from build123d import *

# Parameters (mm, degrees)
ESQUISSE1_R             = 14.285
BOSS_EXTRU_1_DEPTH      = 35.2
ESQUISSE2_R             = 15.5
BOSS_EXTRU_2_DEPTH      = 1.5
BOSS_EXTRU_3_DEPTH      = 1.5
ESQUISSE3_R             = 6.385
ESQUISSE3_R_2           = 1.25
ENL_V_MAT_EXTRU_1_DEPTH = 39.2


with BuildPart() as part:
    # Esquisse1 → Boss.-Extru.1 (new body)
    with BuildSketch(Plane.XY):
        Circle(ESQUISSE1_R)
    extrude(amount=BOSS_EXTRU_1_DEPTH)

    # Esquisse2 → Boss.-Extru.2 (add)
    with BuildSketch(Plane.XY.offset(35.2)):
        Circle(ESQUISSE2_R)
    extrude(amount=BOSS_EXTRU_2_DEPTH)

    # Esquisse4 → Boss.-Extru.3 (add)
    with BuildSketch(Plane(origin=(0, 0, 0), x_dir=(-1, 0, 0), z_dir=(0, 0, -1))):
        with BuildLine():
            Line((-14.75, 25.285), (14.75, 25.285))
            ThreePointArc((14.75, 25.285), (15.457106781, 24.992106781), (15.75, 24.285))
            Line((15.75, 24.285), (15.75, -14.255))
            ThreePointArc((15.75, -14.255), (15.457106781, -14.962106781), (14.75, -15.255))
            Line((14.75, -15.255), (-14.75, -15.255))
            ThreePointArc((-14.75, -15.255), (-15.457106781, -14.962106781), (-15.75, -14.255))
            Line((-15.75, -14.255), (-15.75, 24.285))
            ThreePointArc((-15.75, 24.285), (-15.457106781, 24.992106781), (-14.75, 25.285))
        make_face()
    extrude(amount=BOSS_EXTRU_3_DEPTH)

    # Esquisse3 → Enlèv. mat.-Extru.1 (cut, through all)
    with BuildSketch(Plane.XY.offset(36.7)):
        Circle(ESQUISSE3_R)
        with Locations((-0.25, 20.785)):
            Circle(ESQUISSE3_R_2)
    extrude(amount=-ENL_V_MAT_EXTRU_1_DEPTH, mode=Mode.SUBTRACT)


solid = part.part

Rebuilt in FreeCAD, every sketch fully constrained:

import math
import FreeCAD as App
import Part
import Sketcher

V = App.Vector
Q = App.Units.Quantity

doc = App.newDocument("Part")
body = doc.addObject("PartDesign::Body", "Body")

# Sketch on XY plane
sketch1 = doc.addObject("Sketcher::SketchObject", "Sketch")
body.addObject(sketch1)
sketch1.AttachmentSupport = (doc.XY_Plane, [""])
sketch1.MapMode = "FlatFace"
sketch1.addGeometry(Part.Circle(V(0, 0, 0), V(0, 0, 1), 14), False)
sketch1.addConstraint([
    Sketcher.Constraint("Coincident", 0, 3, -1, 1),
    Sketcher.Constraint("Diameter", 0, Q("28.57 mm")),
])
pad1 = doc.addObject("PartDesign::Pad", "Pad")
body.addObject(pad1)
pad1.Profile = sketch1
pad1.Length = 35.2

# Sketch on XY plane
sketch2 = doc.addObject("Sketcher::SketchObject", "Sketch001")
body.addObject(sketch2)
sketch2.AttachmentSupport = (doc.XY_Plane, [""])
sketch2.MapMode = "FlatFace"
sketch2.AttachmentOffset = App.Placement(V(0, 0, 35.2), App.Rotation())
sketch2.addGeometry(Part.Circle(V(0, 0, 0), V(0, 0, 1), 16), False)
sketch2.addConstraint([
    Sketcher.Constraint("Coincident", 0, 3, -1, 1),
    Sketcher.Constraint("Diameter", 0, Q("31 mm")),
])
pad2 = doc.addObject("PartDesign::Pad", "Pad001")
body.addObject(pad2)
pad2.Profile = sketch2
pad2.Length = 1.5

# Sketch on XY plane
sketch3 = doc.addObject("Sketcher::SketchObject", "Sketch002")
body.addObject(sketch3)
sketch3.AttachmentSupport = (doc.XY_Plane, [""])
sketch3.MapMode = "FlatFace"
sketch3.addGeometry([
    Part.LineSegment(V(-14.8, 25.3, 0), V(14.8, 25.3, 0)),  # 0
    Part.ArcOfCircle(Part.Circle(V(14.7, 24.3, 0), V(0, 0, 1), 1), math.radians(0), math.radians(90)),  # 1
    Part.LineSegment(V(15.8, 24.3, 0), V(15.8, -14.3, 0)),  # 2
    Part.ArcOfCircle(Part.Circle(V(14.7, -14.3, 0), V(0, 0, 1), 1), math.radians(-90), math.radians(0)),  # 3
    Part.LineSegment(V(14.8, -15.3, 0), V(-14.8, -15.3, 0)),  # 4
    Part.ArcOfCircle(Part.Circle(V(-14.7, -14.3, 0), V(0, 0, 1), 1), math.radians(-180), math.radians(-90)),  # 5
    Part.LineSegment(V(-15.8, -14.3, 0), V(-15.8, 24.3, 0)),  # 6
    Part.ArcOfCircle(Part.Circle(V(-14.7, 24.3, 0), V(0, 0, 1), 1), math.radians(90), math.radians(180)),  # 7
], False)
sketch3.addConstraint([
    Sketcher.Constraint("Tangent", 0, 2, 1, 2),
    Sketcher.Constraint("Tangent", 1, 1, 2, 1),
    Sketcher.Constraint("Tangent", 2, 2, 3, 2),
    Sketcher.Constraint("Tangent", 3, 1, 4, 1),
    Sketcher.Constraint("Tangent", 4, 2, 5, 2),
    Sketcher.Constraint("Tangent", 5, 1, 6, 1),
    Sketcher.Constraint("Tangent", 6, 2, 7, 2),
    Sketcher.Constraint("Tangent", 7, 1, 0, 1),
    Sketcher.Constraint("Horizontal", 0),
    Sketcher.Constraint("Vertical", 2),
    Sketcher.Constraint("Horizontal", 4),
    Sketcher.Constraint("Vertical", 6),
    Sketcher.Constraint("Equal", 1, 3),
    Sketcher.Constraint("Equal", 3, 5),
    Sketcher.Constraint("Equal", 5, 7),
    Sketcher.Constraint("Radius", 1, Q("1 mm")),
    Sketcher.Constraint("DistanceX", 0, 1, 0, 2, Q("29.5 mm")),
    Sketcher.Constraint("DistanceY", 2, 2, 2, 1, Q("38.54 mm")),
    Sketcher.Constraint("DistanceX", -1, 1, 1, 3, Q("14.75 mm")),
    Sketcher.Constraint("DistanceY", -1, 1, 1, 3, Q("24.285 mm")),
])
pad3 = doc.addObject("PartDesign::Pad", "Pad002")
body.addObject(pad3)
pad3.Profile = sketch3
pad3.Length = 1.5
pad3.Reversed = True

# Sketch on XY plane
sketch4 = doc.addObject("Sketcher::SketchObject", "Sketch003")
body.addObject(sketch4)
sketch4.AttachmentSupport = (doc.XY_Plane, [""])
sketch4.MapMode = "FlatFace"
sketch4.AttachmentOffset = App.Placement(V(0, 0, 36.7), App.Rotation())
sketch4.addGeometry([
    Part.Circle(V(0, 0, 0), V(0, 0, 1), 6.4),
    Part.Circle(V(-0.2, 20.8, 0), V(0, 0, 1), 1.2),
], False)
sketch4.addConstraint([
    Sketcher.Constraint("Coincident", 0, 3, -1, 1),
    Sketcher.Constraint("Diameter", 1, Q("2.5 mm")),
    Sketcher.Constraint("Diameter", 0, Q("12.77 mm")),
    Sketcher.Constraint("DistanceX", 1, 3, -1, 1, Q("0.25 mm")),
    Sketcher.Constraint("DistanceY", -1, 1, 1, 3, Q("20.785 mm")),
])
pocket1 = doc.addObject("PartDesign::Pocket", "Pocket")
body.addObject(pocket1)
pocket1.Profile = sketch4
pocket1.Type = "ThroughAll"

doc.recompute()
